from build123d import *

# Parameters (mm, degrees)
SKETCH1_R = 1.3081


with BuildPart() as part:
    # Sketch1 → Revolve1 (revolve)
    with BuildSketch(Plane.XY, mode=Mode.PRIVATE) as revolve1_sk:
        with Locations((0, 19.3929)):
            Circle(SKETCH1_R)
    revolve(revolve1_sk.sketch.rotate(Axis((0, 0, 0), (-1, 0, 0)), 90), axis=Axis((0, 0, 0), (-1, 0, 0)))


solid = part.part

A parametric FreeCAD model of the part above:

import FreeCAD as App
import Part
import Sketcher
from FreeCAD import Vector
Q = App.Units.Quantity

doc = App.newDocument("Part")
body = doc.addObject("PartDesign::Body", "Body")

# Sketch on XY plane
sketch1 = body.newObject("Sketcher::SketchObject", "Sketch")
sketch1.AttachmentSupport = (doc.getObject("XY_Plane"), [""])
sketch1.MapMode = "FlatFace"
sketch1.addGeometry(Part.Circle(Vector(0, 19.3929, 0), Vector(0, 0, 1), 1.3081), False)
sketch1.addConstraint(Sketcher.Constraint("PointOnObject", 0, 3, -2))
sketch1.addConstraint(Sketcher.Constraint("Diameter", 0, Q("0.103 in")))
sketch1.addConstraint(Sketcher.Constraint("DistanceY", -1, 1, 0, 3, Q("0.7635 in")))
revolution = body.newObject("PartDesign::Revolution", "Revolution")
revolution.Profile = sketch1
revolution.ReferenceAxis = (sketch1, ["H_Axis"])
revolution.Angle = 360

doc.recompute()
